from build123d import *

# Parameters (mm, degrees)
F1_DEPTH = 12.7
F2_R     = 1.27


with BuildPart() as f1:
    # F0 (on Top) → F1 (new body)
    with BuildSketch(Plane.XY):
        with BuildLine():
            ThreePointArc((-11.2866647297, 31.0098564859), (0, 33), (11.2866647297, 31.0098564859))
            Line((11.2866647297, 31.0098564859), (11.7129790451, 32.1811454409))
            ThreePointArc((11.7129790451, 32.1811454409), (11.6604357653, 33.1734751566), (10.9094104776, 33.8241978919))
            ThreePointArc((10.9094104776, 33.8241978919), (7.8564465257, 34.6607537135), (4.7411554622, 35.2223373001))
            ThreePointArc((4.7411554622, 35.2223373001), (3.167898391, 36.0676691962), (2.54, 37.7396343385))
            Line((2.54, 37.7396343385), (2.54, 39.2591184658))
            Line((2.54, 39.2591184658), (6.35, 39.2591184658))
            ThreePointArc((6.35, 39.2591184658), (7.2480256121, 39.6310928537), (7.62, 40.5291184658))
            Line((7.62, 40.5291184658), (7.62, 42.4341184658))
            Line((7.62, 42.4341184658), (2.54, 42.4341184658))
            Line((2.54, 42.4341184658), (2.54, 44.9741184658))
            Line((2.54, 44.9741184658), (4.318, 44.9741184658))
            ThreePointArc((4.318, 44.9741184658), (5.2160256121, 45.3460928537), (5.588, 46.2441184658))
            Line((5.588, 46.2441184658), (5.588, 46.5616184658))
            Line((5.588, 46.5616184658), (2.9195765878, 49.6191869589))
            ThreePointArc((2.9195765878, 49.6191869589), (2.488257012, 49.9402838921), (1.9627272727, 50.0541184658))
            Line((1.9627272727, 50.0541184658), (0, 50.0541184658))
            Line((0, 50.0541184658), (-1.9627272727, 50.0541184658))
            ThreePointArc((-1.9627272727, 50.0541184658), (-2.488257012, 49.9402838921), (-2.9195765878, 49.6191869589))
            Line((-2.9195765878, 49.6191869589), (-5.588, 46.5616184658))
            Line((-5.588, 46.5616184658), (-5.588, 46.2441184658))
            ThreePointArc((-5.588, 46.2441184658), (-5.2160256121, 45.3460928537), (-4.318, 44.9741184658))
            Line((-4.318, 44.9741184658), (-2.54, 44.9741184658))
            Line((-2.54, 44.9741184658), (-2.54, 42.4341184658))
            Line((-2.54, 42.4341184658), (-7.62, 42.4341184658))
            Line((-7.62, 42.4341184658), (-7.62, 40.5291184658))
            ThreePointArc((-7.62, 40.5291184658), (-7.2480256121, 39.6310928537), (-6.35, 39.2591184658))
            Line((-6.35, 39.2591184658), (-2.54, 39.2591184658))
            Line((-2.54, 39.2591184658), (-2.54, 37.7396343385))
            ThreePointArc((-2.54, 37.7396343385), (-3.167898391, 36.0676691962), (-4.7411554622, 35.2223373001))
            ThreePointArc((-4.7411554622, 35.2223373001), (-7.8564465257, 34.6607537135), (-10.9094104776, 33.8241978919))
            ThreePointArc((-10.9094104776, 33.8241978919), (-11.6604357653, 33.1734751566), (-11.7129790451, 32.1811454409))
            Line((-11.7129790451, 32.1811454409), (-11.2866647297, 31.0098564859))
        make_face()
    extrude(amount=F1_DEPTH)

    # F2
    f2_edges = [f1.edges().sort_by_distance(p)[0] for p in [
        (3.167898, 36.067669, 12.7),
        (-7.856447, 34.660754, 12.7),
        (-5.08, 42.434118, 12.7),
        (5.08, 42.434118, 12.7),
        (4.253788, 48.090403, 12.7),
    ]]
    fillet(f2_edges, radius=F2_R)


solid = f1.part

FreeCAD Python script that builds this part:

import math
import FreeCAD as App
import Part
import Sketcher

V = App.Vector
Q = App.Units.Quantity


def edges_at(feature, points):
    """Names of the edges that pass closest to the given points."""
    edges = feature.Shape.Edges
    near = lambda p: min(range(len(edges)), key=lambda i: edges[i].distToShape(Part.Vertex(*p))[0])
    return sorted({f"Edge{near(p) + 1}" for p in points})

doc = App.newDocument("Part")
params = doc.addObject("Spreadsheet::Sheet", "Params")
for row, (alias, value) in enumerate([
    ("sketch1_radius", "0.1 in"),
    ("sketch1_radius2", "0.05 in"),
    ("sketch1_width", "0.2 in"),
    ("sketch1_height", "0.1 in"),
    ("sketch1_width2", "0.07 in"),
    ("pad1_length", "0.5 in"),
    ("fillet_radius", "0.05 in"),
], start=1):
    params.set(f"A{row}", alias)
    params.set(f"B{row}", "=" + value)
    params.setAlias(f"B{row}", alias)

body = doc.addObject("PartDesign::Body", "Body")

sketch1 = doc.addObject("Sketcher::SketchObject", "Sketch")
body.addObject(sketch1)
sketch1.AttachmentSupport = (doc.XY_Plane, [""])
sketch1.MapMode = "FlatFace"
sketch1.addGeometry([
    Part.ArcOfCircle(Part.Circle(V(0, 0, 0), V(0, 0, 1), 33), math.radians(70), math.radians(110)),
    Part.LineSegment(V(11.29, 31.01, 0), V(11.71, 32.18, 0)),
    Part.ArcOfCircle(Part.Circle(V(10.52, 32.62, 0), V(0, 0, 1), 1.27), math.radians(-20), math.radians(72)),
    Part.ArcOfCircle(Part.Circle(V(0, 0, 0), V(0, 0, 1), 35.54), math.radians(72.12), math.radians(82.33)),
    Part.ArcOfCircle(Part.Circle(V(5.08, 37.74, 0), V(0, 0, 1), 2.54), math.radians(180), math.radians(262)),
    Part.LineSegment(V(2.54, 37.74, 0), V(2.54, 39.26, 0)),
    Part.LineSegment(V(2.54, 39.26, 0), V(6.35, 39.26, 0)),
    Part.ArcOfCircle(Part.Circle(V(6.35, 40.53, 0), V(0, 0, 1), 1.27), math.radians(-90), math.radians(0)),
    Part.LineSegment(V(7.62, 40.53, 0), V(7.62, 42.43, 0)),
    Part.LineSegment(V(7.62, 42.43, 0), V(2.54, 42.43, 0)),
    Part.LineSegment(V(2.54, 42.43, 0), V(2.54, 44.97, 0)),
    Part.LineSegment(V(2.54, 44.97, 0), V(4.32, 44.97, 0)),
    Part.ArcOfCircle(Part.Circle(V(4.32, 46.24, 0), V(0, 0, 1), 1.27), math.radians(-90), math.radians(0)),
    Part.LineSegment(V(5.59, 46.24, 0), V(5.59, 46.56, 0)),
    Part.LineSegment(V(5.59, 46.56, 0), V(2.92, 49.62, 0)),
    Part.ArcOfCircle(Part.Circle(V(1.96, 48.78, 0), V(0, 0, 1), 1.27), math.radians(41), math.radians(90)),
    Part.LineSegment(V(1.96, 50.05, 0), V(-1.96, 50.05, 0)),
    Part.ArcOfCircle(Part.Circle(V(-1.96, 48.78, 0), V(0, 0, 1), 1.27), math.radians(90), math.radians(139)),
    Part.LineSegment(V(-2.92, 49.62, 0), V(-5.59, 46.56, 0)),
    Part.LineSegment(V(-5.59, 46.56, 0), V(-5.59, 46.24, 0)),
    Part.ArcOfCircle(Part.Circle(V(-4.32, 46.24, 0), V(0, 0, 1), 1.27), math.radians(180), math.radians(270)),
    Part.LineSegment(V(-4.32, 44.97, 0), V(-2.54, 44.97, 0)),
    Part.LineSegment(V(-2.54, 44.97, 0), V(-2.54, 42.43, 0)),
    Part.LineSegment(V(-2.54, 42.43, 0), V(-7.62, 42.43, 0)),
    Part.LineSegment(V(-7.62, 42.43, 0), V(-7.62, 40.53, 0)),
    Part.ArcOfCircle(Part.Circle(V(-6.35, 40.53, 0), V(0, 0, 1), 1.27), math.radians(180), math.radians(270)),
    Part.LineSegment(V(-6.35, 39.26, 0), V(-2.54, 39.26, 0)),
    Part.LineSegment(V(-2.54, 39.26, 0), V(-2.54, 37.74, 0)),
    Part.ArcOfCircle(Part.Circle(V(-5.08, 37.74, 0), V(0, 0, 1), 2.54), math.radians(-82), math.radians(0)),
    Part.ArcOfCircle(Part.Circle(V(0, 0, 0), V(0, 0, 1), 35.54), math.radians(97.67), math.radians(107.88)),
    Part.ArcOfCircle(Part.Circle(V(-10.52, 32.62, 0), V(0, 0, 1), 1.27), math.radians(108), math.radians(200)),
    Part.LineSegment(V(-11.71, 32.18, 0), V(-11.29, 31.01, 0)),
], False)
sketch1.addConstraint([
    Sketcher.Constraint("Coincident", 0, 1, 1, 1),
    Sketcher.Constraint("Tangent", 1, 2, 2, 1),
    Sketcher.Constraint("Tangent", 2, 2, 3, 1),
    Sketcher.Constraint("Tangent", 3, 2, 4, 2),
    Sketcher.Constraint("Tangent", 4, 1, 5, 1),
    Sketcher.Constraint("Coincident", 5, 2, 6, 1),
    Sketcher.Constraint("Tangent", 6, 2, 7, 1),
    Sketcher.Constraint("Tangent", 7, 2, 8, 1),
    Sketcher.Constraint("Coincident", 8, 2, 9, 1),
    Sketcher.Constraint("Coincident", 9, 2, 10, 1),
    Sketcher.Constraint("Coincident", 10, 2, 11, 1),
    Sketcher.Constraint("Tangent", 11, 2, 12, 1),
    Sketcher.Constraint("Tangent", 12, 2, 13, 1),
    Sketcher.Constraint("Coincident", 13, 2, 14, 1),
    Sketcher.Constraint("Tangent", 14, 2, 15, 1),
    Sketcher.Constraint("Tangent", 15, 2, 16, 1),
    Sketcher.Constraint("Tangent", 16, 2, 17, 1),
    Sketcher.Constraint("Tangent", 17, 2, 18, 1),
    Sketcher.Constraint("Coincident", 18, 2, 19, 1),
    Sketcher.Constraint("Tangent", 19, 2, 20, 1),
    Sketcher.Constraint("Tangent", 20, 2, 21, 1),
    Sketcher.Constraint("Coincident", 21, 2, 22, 1),
    Sketcher.Constraint("Coincident", 22, 2, 23, 1),
    Sketcher.Constraint("Coincident", 23, 2, 24, 1),
    Sketcher.Constraint("Tangent", 24, 2, 25, 1),
    Sketcher.Constraint("Tangent", 25, 2, 26, 1),
    Sketcher.Constraint("Coincident", 26, 2, 27, 1),
    Sketcher.Constraint("Tangent", 27, 2, 28, 2),
    Sketcher.Constraint("Tangent", 28, 1, 29, 1),
    Sketcher.Constraint("Tangent", 29, 2, 30, 1),
    Sketcher.Constraint("Tangent", 30, 2, 31, 1),
    Sketcher.Constraint("Coincident", 31, 2, 0, 2),
    Sketcher.Constraint("Vertical", 5),
    Sketcher.Constraint("Horizontal", 6),
    Sketcher.Constraint("Vertical", 8),
    Sketcher.Constraint("Horizontal", 9),
    Sketcher.Constraint("Vertical", 10),
    Sketcher.Constraint("Horizontal", 11),
    Sketcher.Constraint("Vertical", 13),
    Sketcher.Constraint("Horizontal", 16),
    Sketcher.Constraint("Vertical", 19),
    Sketcher.Constraint("Horizontal", 21),
    Sketcher.Constraint("Vertical", 22),
    Sketcher.Constraint("Horizontal", 23),
    Sketcher.Constraint("Vertical", 24),
    Sketcher.Constraint("Horizontal", 26),
    Sketcher.Constraint("Vertical", 27),
    Sketcher.Constraint("Coincident", 0, 3, -1, 1),
    Sketcher.Constraint("Coincident", 3, 3, -1, 1),
    Sketcher.Constraint("Coincident", 29, 3, -1, 1),
    Sketcher.Constraint("Equal", 2, 7),
    Sketcher.Constraint("Equal", 7, 12),
    Sketcher.Constraint("Equal", 12, 15),
    Sketcher.Constraint("Equal", 15, 17),
    Sketcher.Constraint("Equal", 17, 20),
    Sketcher.Constraint("Equal", 20, 25),
    Sketcher.Constraint("Equal", 4, 28),
    Sketcher.Constraint("Equal", 3, 29),
    Sketcher.Constraint("Equal", 25, 30),
    Sketcher.Constraint("Symmetric", 12, 3, 20, 3, -2),
    Sketcher.Constraint("Symmetric", 7, 3, 25, 3, -2),
    Sketcher.Constraint("Symmetric", 14, 2, 17, 2, -2),
    Sketcher.Constraint("Symmetric", 9, 2, 22, 2, -2),
    Sketcher.Constraint("Symmetric", 1, 2, 30, 2, -2),
    Sketcher.Constraint("Horizontal", 4, 3, 28, 3),
    Sketcher.Constraint("Vertical", 5, 2, 9, 2),
    Sketcher.Constraint("Radius", 4, Q("0.1 in")),
    Sketcher.Constraint("Radius", 2, Q("0.05 in")),
    Sketcher.Constraint("DistanceX", 9, 2, 9, 1, Q("0.2 in")),
    Sketcher.Constraint("DistanceY", 10, 1, 10, 2, Q("0.1 in")),
    Sketcher.Constraint("Angle", 1, Q("70 deg")),
    Sketcher.Constraint("DistanceX", 11, 1, 11, 2, Q("0.07 in")),
    Sketcher.Constraint("DistanceX", -1, 1, 4, 3, Q("0.2 in")),
    Sketcher.Constraint("DistanceY", 12, 3, 15, 3, Q("0.1 in")),
    Sketcher.Constraint("DistanceY", 8, 1, 8, 2, Q("0.075 in")),
    Sketcher.Constraint("Radius", 0, Q("33 mm")),
    Sketcher.Constraint("Radius", 3, Q("35.54 mm")),
    Sketcher.Constraint("DistanceY", 13, 1, 13, 2, Q("0.0125 in")),
    Sketcher.Constraint("Distance", 1, Q("1.24646 mm")),
    Sketcher.Constraint("DistanceX", 16, 2, 16, 1, Q("3.925455 mm")),
    Sketcher.Constraint("DistanceY", 5, 1, 5, 2, Q("1.519484 mm")),
])
sketch1.setExpression("Constraints[66]", "Params.sketch1_radius")
sketch1.setExpression("Constraints[67]", "Params.sketch1_radius2")
sketch1.setExpression("Constraints[68]", "Params.sketch1_width")
sketch1.setExpression("Constraints[69]", "Params.sketch1_height")
sketch1.setExpression("Constraints[71]", "Params.sketch1_width2")
pad1 = doc.addObject("PartDesign::Pad", "Pad")
body.addObject(pad1)
pad1.Profile = sketch1
pad1.setExpression("Length", "Params.pad1_length")
doc.recompute()

fillet = doc.addObject("PartDesign::Fillet", "Fillet")
body.addObject(fillet)
fillet.Base = (pad1, edges_at(pad1, [
    (3.168, 36.068, 12.7),
    (-7.856, 34.661, 12.7),
    (-5.08, 42.434, 12.7),
    (5.08, 42.434, 12.7),
    (4.254, 48.09, 12.7),
]))
fillet.setExpression("Radius", "Params.fillet_radius")

doc.recompute()
